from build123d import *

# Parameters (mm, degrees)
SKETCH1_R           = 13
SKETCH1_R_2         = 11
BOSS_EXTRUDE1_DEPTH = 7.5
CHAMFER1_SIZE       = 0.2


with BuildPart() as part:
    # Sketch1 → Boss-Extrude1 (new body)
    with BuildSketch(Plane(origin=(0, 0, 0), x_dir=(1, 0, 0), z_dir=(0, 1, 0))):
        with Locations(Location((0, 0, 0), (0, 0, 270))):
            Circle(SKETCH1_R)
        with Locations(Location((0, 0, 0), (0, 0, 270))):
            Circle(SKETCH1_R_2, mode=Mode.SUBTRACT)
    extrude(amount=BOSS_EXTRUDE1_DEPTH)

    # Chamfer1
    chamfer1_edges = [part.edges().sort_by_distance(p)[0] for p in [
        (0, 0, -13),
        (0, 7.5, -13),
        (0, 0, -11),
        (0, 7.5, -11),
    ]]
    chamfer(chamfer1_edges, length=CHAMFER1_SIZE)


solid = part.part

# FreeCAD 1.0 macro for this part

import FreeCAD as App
import Part
import Sketcher

V = App.Vector


def edges_at(feature, points):
    """Names of the edges that pass closest to the given points."""
    edges = feature.Shape.Edges
    near = lambda p: min(range(len(edges)), key=lambda i: edges[i].distToShape(Part.Vertex(*p))[0])
    return sorted({f"Edge{near(p) + 1}" for p in points})

doc = App.newDocument("Part")
body = doc.addObject("PartDesign::Body", "Body")

# Sketch on XZ plane
sketch1 = body.newObject("Sketcher::SketchObject", "Sketch")
sketch1.AttachmentSupport = (doc.getObject("XZ_Plane"), [""])
sketch1.MapMode = "FlatFace"
sketch1.addGeometry([
    Part.Circle(V(0, 0, 0), V(0, 0, 1), 13),
    Part.Circle(V(0, 0, 0), V(0, 0, 1), 11),
], False)
sketch1.addConstraint([
    Sketcher.Constraint("Coincident", 0, 3, -1, 1),
    Sketcher.Constraint("Coincident", 1, 3, -1, 1),
    Sketcher.Constraint("Diameter", 0, 26.0),
    Sketcher.Constraint("Diameter", 1, 22.0),
])
pad1 = body.newObject("PartDesign::Pad", "Pad")
pad1.Profile = sketch1
pad1.Length = 7.5
pad1.Reversed = True
doc.recompute()

chamfer = body.newObject("PartDesign::Chamfer", "Chamfer")
chamfer.Base = (pad1, edges_at(pad1, [
    (0, 0, -13),
    (0, 7.5, -13),
    (0, 0, -11),
    (0, 7.5, -11),
]))
chamfer.Size = 0.2

doc.recompute()
